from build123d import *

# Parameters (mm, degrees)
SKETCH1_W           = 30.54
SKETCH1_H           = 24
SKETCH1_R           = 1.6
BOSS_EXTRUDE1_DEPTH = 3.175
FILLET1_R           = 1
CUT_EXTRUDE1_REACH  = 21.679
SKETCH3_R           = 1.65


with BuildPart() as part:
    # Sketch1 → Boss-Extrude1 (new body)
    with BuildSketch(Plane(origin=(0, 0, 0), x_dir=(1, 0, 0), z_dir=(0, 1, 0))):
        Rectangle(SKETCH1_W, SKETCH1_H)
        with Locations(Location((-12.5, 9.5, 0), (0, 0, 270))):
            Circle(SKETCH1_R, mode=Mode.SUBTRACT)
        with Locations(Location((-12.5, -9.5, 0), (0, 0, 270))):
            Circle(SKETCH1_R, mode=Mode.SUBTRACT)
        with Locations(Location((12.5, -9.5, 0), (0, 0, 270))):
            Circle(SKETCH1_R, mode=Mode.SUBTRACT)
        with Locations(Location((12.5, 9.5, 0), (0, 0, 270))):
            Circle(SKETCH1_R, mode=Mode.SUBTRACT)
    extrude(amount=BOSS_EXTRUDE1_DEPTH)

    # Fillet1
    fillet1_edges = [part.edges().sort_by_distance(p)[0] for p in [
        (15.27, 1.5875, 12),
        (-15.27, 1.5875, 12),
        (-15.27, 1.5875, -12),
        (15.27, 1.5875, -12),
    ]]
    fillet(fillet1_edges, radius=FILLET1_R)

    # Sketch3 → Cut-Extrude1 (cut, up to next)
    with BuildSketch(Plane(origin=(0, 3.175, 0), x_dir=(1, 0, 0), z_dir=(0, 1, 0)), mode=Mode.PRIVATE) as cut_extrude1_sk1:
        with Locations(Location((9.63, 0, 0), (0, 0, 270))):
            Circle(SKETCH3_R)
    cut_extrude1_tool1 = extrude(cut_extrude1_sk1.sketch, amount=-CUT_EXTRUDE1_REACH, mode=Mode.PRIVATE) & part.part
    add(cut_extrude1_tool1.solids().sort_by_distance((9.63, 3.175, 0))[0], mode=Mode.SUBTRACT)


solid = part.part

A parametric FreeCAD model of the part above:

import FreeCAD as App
import Part
import Sketcher

V = App.Vector
Q = App.Units.Quantity


def edges_at(feature, points):
    """Names of the edges that pass closest to the given points."""
    edges = feature.Shape.Edges
    near = lambda p: min(range(len(edges)), key=lambda i: edges[i].distToShape(Part.Vertex(*p))[0])
    return sorted({f"Edge{near(p) + 1}" for p in points})


def add_polygon(sketch, points):
    """Adds a closed chain of lines whose ends are joined by coincident constraints."""
    first, n = sketch.GeometryCount, len(points)
    for a, b in zip(points, points[1:] + points[:1]):
        sketch.addGeometry(Part.LineSegment(App.Vector(*a, 0), App.Vector(*b, 0)), False)
    for i in range(n):
        sketch.addConstraint(Sketcher.Constraint("Coincident", first + i, 2, first + (i + 1) % n, 1))

doc = App.newDocument("Part")
params = doc.addObject("Spreadsheet::Sheet", "Params")
for row, (alias, value) in enumerate([
    ("sketch1_diameter", "3.2 mm"),
    ("sketch1_height", "24 mm"),
    ("sketch1_width", "30.54 mm"),
    ("pad1_length", "3.175 mm"),
    ("fillet_radius", "1 mm"),
    ("sketch2_diameter", "3.3 mm"),
], start=1):
    params.set(f"A{row}", alias)
    params.set(f"B{row}", "=" + value)
    params.setAlias(f"B{row}", alias)

body = doc.addObject("PartDesign::Body", "Body")

sketch1 = body.newObject("Sketcher::SketchObject", "Sketch")
sketch1.AttachmentSupport = (doc.getObject("XZ_Plane"), [""])
sketch1.MapMode = "FlatFace"
add_polygon(sketch1, [(-15.27, -12), (-15.27, 12), (15.27, 12), (15.27, -12)])
sketch1.addGeometry(Part.Circle(V(-12.5, 9.5, 0), V(0, 0, 1), 1.6), False)
sketch1.addGeometry(Part.Circle(V(12.5, 9.5, 0), V(0, 0, 1), 1.6), False)
sketch1.addGeometry(Part.Circle(V(-12.5, -9.5, 0), V(0, 0, 1), 1.6), False)
sketch1.addGeometry(Part.Circle(V(12.5, -9.5, 0), V(0, 0, 1), 1.6), False)
sketch1.addConstraint(Sketcher.Constraint("Vertical", 0))
sketch1.addConstraint(Sketcher.Constraint("Horizontal", 1))
sketch1.addConstraint(Sketcher.Constraint("Vertical", 2))
sketch1.addConstraint(Sketcher.Constraint("Horizontal", 3))
sketch1.addConstraint(Sketcher.Constraint("Equal", 4, 5))
sketch1.addConstraint(Sketcher.Constraint("Equal", 5, 6))
sketch1.addConstraint(Sketcher.Constraint("Equal", 6, 7))
sketch1.addConstraint(Sketcher.Constraint("Symmetric", 5, 3, 6, 3, -1, 1))
sketch1.addConstraint(Sketcher.Constraint("Symmetric", 4, 3, 7, 3, -1, 1))
sketch1.addConstraint(Sketcher.Constraint("Symmetric", 0, 2, 2, 2, -1, 1))
sketch1.addConstraint(Sketcher.Constraint("Symmetric", 4, 3, 5, 3, -2))
sketch1.addConstraint(Sketcher.Constraint("Diameter", 4, Q("3.2 mm")))
sketch1.addConstraint(Sketcher.Constraint("DistanceY", 0, 1, 0, 2, Q("24 mm")))
sketch1.addConstraint(Sketcher.Constraint("DistanceX", 4, 3, 5, 3, Q("25 mm")))
sketch1.addConstraint(Sketcher.Constraint("DistanceY", 6, 3, 4, 3, Q("19 mm")))
sketch1.addConstraint(Sketcher.Constraint("DistanceX", 1, 1, 1, 2, Q("30.54 mm")))
sketch1.setExpression("Constraints[15]", "Params.sketch1_diameter")
sketch1.setExpression("Constraints[16]", "Params.sketch1_height")
sketch1.setExpression("Constraints[19]", "Params.sketch1_width")
pad1 = body.newObject("PartDesign::Pad", "Pad")
pad1.Profile = sketch1
pad1.setExpression("Length", "Params.pad1_length")
pad1.Reversed = True
doc.recompute()

fillet = body.newObject("PartDesign::Fillet", "Fillet")
fillet.Base = (pad1, edges_at(pad1, [
    (15.27, 1.587, 12),
    (-15.27, 1.587, 12),
    (-15.27, 1.587, -12),
    (15.27, 1.587, -12),
]))
fillet.setExpression("Radius", "Params.fillet_radius")

sketch2 = body.newObject("Sketcher::SketchObject", "Sketch001")
sketch2.AttachmentSupport = (doc.getObject("XZ_Plane"), [""])
sketch2.MapMode = "FlatFace"
sketch2.AttachmentOffset = App.Placement(V(0, 0, -3.175), App.Rotation())
sketch2.addGeometry(Part.Circle(V(9.63, 0, 0), V(0, 0, 1), 1.65), False)
sketch2.addConstraint(Sketcher.Constraint("PointOnObject", 0, 3, -1))
sketch2.addConstraint(Sketcher.Constraint("Diameter", 0, Q("3.3 mm")))
sketch2.addConstraint(Sketcher.Constraint("DistanceX", -1, 1, 0, 3, Q("9.63 mm")))
sketch2.setExpression("Constraints[1]", "Params.sketch2_diameter")
pocket1 = body.newObject("PartDesign::Pocket", "Pocket")
pocket1.Profile = sketch2
pocket1.Type = "UpToFirst"
pocket1.Reversed = True

doc.recompute()
